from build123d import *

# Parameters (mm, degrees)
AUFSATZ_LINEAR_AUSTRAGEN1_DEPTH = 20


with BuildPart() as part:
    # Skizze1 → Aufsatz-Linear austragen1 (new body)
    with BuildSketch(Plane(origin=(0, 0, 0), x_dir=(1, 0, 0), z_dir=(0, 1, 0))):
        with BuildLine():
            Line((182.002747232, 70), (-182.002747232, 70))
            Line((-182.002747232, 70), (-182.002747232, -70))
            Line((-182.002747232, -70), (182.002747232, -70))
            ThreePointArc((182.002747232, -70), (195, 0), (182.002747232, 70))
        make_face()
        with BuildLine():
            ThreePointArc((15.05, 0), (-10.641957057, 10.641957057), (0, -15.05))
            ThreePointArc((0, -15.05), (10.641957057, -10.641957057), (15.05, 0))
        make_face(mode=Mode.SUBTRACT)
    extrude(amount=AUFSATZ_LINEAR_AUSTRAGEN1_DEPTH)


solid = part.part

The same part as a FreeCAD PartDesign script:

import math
import FreeCAD as App
import Part
import Sketcher

V = App.Vector

doc = App.newDocument("Part")
body = doc.addObject("PartDesign::Body", "Body")

# Sketch on XZ plane
sketch1 = body.newObject("Sketcher::SketchObject", "Sketch")
sketch1.AttachmentSupport = (doc.getObject("XZ_Plane"), [""])
sketch1.MapMode = "FlatFace"
sketch1.addGeometry([
    Part.LineSegment(V(182, -70, 0), V(-182, -70, 0)),  # 0
    Part.LineSegment(V(-182, -70, 0), V(-182, 70, 0)),  # 1
    Part.LineSegment(V(-182, 70, 0), V(182, 70, 0)),  # 2
    Part.ArcOfCircle(Part.Circle(V(0, 0, 0), V(0, 0, 1), 195), math.radians(-21), math.radians(21)),  # 3
    Part.ArcOfCircle(Part.Circle(V(0, 0, 0), V(0, 0, 1), 15), math.radians(90), math.radians(360)),  # 4
    Part.ArcOfCircle(Part.Circle(V(0, 0, 0), V(0, 0, 1), 15), math.radians(0), math.radians(90)),  # 5
], False)
sketch1.addConstraint([
    Sketcher.Constraint("Coincident", 0, 2, 1, 1),
    Sketcher.Constraint("Coincident", 1, 2, 2, 1),
    Sketcher.Constraint("Coincident", 2, 2, 3, 2),
    Sketcher.Constraint("Coincident", 3, 1, 0, 1),
    Sketcher.Constraint("Tangent", 4, 1, 5, 2),
    Sketcher.Constraint("Coincident", 5, 1, 4, 2),
    Sketcher.Constraint("Horizontal", 0),
    Sketcher.Constraint("Vertical", 1),
    Sketcher.Constraint("Horizontal", 2),
    Sketcher.Constraint("Coincident", 3, 3, -1, 1),
    Sketcher.Constraint("Coincident", 4, 3, -1, 1),
    Sketcher.Constraint("Symmetric", 0, 2, 2, 2, -1, 1),
    Sketcher.Constraint("PointOnObject", 4, 1, -2),
    Sketcher.Constraint("PointOnObject", 5, 1, -1),
    Sketcher.Constraint("Radius", 3, 195.0),
    Sketcher.Constraint("DistanceY", 1, 1, 1, 2, 140.0),
    Sketcher.Constraint("Radius", 4, 15.05),
])
pad1 = body.newObject("PartDesign::Pad", "Pad")
pad1.Profile = sketch1
pad1.Length = 20
pad1.Reversed = True

doc.recompute()
